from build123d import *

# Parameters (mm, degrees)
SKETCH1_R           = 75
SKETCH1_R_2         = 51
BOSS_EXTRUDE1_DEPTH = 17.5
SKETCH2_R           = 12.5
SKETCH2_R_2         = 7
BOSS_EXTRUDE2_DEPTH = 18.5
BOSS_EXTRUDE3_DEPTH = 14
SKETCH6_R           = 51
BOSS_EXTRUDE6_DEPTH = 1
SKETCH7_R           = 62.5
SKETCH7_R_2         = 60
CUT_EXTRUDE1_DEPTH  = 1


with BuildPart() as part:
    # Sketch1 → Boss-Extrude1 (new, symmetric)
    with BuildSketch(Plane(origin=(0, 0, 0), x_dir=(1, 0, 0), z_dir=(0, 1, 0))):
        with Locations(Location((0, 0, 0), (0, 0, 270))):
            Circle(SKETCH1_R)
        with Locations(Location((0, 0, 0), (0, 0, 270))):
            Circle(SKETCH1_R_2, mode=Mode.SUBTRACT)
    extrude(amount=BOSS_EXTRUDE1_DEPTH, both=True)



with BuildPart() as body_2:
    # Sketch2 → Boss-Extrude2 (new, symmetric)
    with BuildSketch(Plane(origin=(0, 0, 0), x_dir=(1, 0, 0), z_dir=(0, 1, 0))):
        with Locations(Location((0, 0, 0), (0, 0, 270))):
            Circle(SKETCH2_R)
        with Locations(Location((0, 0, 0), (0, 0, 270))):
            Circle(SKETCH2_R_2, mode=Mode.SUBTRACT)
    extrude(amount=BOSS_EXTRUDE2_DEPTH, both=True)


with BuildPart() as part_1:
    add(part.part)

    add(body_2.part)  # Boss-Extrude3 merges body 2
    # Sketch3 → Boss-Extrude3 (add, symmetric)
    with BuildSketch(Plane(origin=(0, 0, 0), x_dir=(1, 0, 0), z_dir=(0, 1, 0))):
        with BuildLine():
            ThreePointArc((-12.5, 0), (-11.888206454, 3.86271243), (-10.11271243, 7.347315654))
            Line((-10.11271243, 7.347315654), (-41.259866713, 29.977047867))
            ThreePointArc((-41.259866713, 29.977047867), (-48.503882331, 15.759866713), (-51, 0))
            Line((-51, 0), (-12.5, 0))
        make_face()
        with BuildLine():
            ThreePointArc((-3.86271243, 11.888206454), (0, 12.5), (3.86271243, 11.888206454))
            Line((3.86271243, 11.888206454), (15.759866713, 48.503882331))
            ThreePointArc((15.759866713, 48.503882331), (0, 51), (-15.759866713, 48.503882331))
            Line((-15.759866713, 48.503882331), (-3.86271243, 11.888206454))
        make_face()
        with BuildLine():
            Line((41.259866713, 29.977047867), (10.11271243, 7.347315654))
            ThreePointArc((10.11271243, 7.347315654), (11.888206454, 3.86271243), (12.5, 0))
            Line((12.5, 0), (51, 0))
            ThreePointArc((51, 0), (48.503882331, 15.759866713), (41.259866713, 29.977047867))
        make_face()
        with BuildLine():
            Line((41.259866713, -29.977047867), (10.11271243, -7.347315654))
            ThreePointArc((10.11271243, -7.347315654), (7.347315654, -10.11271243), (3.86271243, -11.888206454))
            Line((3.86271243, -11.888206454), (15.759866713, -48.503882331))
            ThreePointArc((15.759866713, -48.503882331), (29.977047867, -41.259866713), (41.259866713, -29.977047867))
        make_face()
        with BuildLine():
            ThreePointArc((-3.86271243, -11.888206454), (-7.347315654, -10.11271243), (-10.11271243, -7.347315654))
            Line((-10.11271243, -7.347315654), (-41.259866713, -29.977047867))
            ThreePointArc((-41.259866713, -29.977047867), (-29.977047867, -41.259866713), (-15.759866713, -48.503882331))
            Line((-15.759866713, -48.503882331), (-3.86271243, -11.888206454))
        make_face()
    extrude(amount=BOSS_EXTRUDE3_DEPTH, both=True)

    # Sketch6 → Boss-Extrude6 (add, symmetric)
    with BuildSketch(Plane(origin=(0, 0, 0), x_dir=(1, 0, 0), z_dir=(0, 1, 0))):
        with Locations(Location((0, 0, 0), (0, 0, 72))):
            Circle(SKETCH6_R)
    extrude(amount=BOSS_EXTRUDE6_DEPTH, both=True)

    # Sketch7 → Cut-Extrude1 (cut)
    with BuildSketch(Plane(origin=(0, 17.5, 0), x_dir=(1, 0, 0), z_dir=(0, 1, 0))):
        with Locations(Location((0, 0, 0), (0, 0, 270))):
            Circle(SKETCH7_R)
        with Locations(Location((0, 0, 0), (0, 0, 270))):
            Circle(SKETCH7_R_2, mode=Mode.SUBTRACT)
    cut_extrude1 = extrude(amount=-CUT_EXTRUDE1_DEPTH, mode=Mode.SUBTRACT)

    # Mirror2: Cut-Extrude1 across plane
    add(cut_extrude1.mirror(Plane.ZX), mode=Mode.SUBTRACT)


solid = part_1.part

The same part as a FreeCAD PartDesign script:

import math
import FreeCAD as App
import Part
import Sketcher
from FreeCAD import Vector
Q = App.Units.Quantity

doc = App.newDocument("Part")
body = doc.addObject("PartDesign::Body", "Body")

sketch1 = body.newObject("Sketcher::SketchObject", "Sketch")
sketch1.AttachmentSupport = (doc.getObject("XZ_Plane"), [""])
sketch1.MapMode = "FlatFace"
sketch1.addGeometry([
    Part.Circle(Vector(0, 0, 0), Vector(0, 0, 1), 75),
    Part.Circle(Vector(0, 0, 0), Vector(0, 0, 1), 51),
], False)
sketch1.addConstraint([
    Sketcher.Constraint("Coincident", 0, 3, -1, 1),
    Sketcher.Constraint("Coincident", 1, 3, -1, 1),
    Sketcher.Constraint("Diameter", 0, Q("150 mm")),
    Sketcher.Constraint("Diameter", 1, Q("102 mm")),
])
pad1 = body.newObject("PartDesign::Pad", "Pad")
pad1.Profile = sketch1
pad1.Length = 35
pad1.Midplane = True
body2 = doc.addObject("PartDesign::Body", "Body001")

sketch2 = body2.newObject("Sketcher::SketchObject", "Sketch001")
sketch2.AttachmentSupport = (doc.getObject("XZ_Plane001"), [""])
sketch2.MapMode = "FlatFace"
sketch2.addGeometry([
    Part.Circle(Vector(0, 0, 0), Vector(0, 0, 1), 12),
    Part.Circle(Vector(0, 0, 0), Vector(0, 0, 1), 7),
], False)
sketch2.addConstraint([
    Sketcher.Constraint("Coincident", 0, 3, -1, 1),
    Sketcher.Constraint("Coincident", 1, 3, -1, 1),
    Sketcher.Constraint("Diameter", 0, Q("25 mm")),
    Sketcher.Constraint("Diameter", 1, Q("14 mm")),
])
pad2 = body2.newObject("PartDesign::Pad", "Pad001")
pad2.Profile = sketch2
pad2.Length = 37
pad2.Midplane = True
body.AllowCompound = True
doc.recompute()

boolean = body.newObject("PartDesign::Boolean", "Boolean")
boolean.Type = "Fuse"
boolean.addObjects([body2])

sketch3 = body.newObject("Sketcher::SketchObject", "Sketch002")
sketch3.AttachmentSupport = (doc.getObject("XZ_Plane"), [""])
sketch3.MapMode = "FlatFace"
sketch3.addGeometry([
    Part.ArcOfCircle(Part.Circle(Vector(0, 0, 0), Vector(0, 0, 1), 12), math.radians(180), math.radians(216)),
    Part.LineSegment(Vector(-10, -7, 0), Vector(-41, -30, 0)),
    Part.ArcOfCircle(Part.Circle(Vector(0, 0, 0), Vector(0, 0, 1), 51), math.radians(180), math.radians(216)),
    Part.LineSegment(Vector(-51, 0, 0), Vector(-12, 0, 0)),
    Part.ArcOfCircle(Part.Circle(Vector(0, 0, 0), Vector(0, 0, 1), 13), math.radians(-108), math.radians(-72)),
    Part.LineSegment(Vector(4, -12, 0), Vector(16, -49, 0)),
    Part.ArcOfCircle(Part.Circle(Vector(0, 0, 0), Vector(0, 0, 1), 51), math.radians(-108), math.radians(-72)),
    Part.LineSegment(Vector(-16, -49, 0), Vector(-4, -12, 0)),
    Part.LineSegment(Vector(41, -30, 0), Vector(10, -7, 0)),
    Part.ArcOfCircle(Part.Circle(Vector(0, 0, 0), Vector(0, 0, 1), 12), math.radians(-36), math.radians(0)),
    Part.LineSegment(Vector(12, 0, 0), Vector(51, 0, 0)),
    Part.ArcOfCircle(Part.Circle(Vector(0, 0, 0), Vector(0, 0, 1), 51), math.radians(-36), math.radians(0)),
    Part.LineSegment(Vector(41, 30, 0), Vector(10, 7, 0)),
    Part.ArcOfCircle(Part.Circle(Vector(0, 0, 0), Vector(0, 0, 1), 12), math.radians(36), math.radians(72)),
    Part.LineSegment(Vector(4, 12, 0), Vector(16, 49, 0)),
    Part.ArcOfCircle(Part.Circle(Vector(0, 0, 0), Vector(0, 0, 1), 51), math.radians(36), math.radians(72)),
    Part.ArcOfCircle(Part.Circle(Vector(0, 0, 0), Vector(0, 0, 1), 12), math.radians(108), math.radians(144)),
    Part.LineSegment(Vector(-10, 7, 0), Vector(-41, 30, 0)),
    Part.ArcOfCircle(Part.Circle(Vector(0, 0, 0), Vector(0, 0, 1), 51), math.radians(108), math.radians(144)),
    Part.LineSegment(Vector(-16, 49, 0), Vector(-4, 12, 0)),
], False)
sketch3.addConstraint([
    Sketcher.Constraint("Coincident", 0, 2, 1, 1),
    Sketcher.Constraint("Coincident", 1, 2, 2, 2),
    Sketcher.Constraint("Coincident", 2, 1, 3, 1),
    Sketcher.Constraint("Coincident", 3, 2, 0, 1),
    Sketcher.Constraint("Coincident", 4, 2, 5, 1),
    Sketcher.Constraint("Coincident", 5, 2, 6, 2),
    Sketcher.Constraint("Coincident", 6, 1, 7, 1),
    Sketcher.Constraint("Coincident", 7, 2, 4, 1),
    Sketcher.Constraint("Coincident", 8, 2, 9, 1),
    Sketcher.Constraint("Coincident", 9, 2, 10, 1),
    Sketcher.Constraint("Coincident", 10, 2, 11, 2),
    Sketcher.Constraint("Coincident", 11, 1, 8, 1),
    Sketcher.Constraint("Coincident", 12, 2, 13, 1),
    Sketcher.Constraint("Coincident", 13, 2, 14, 1),
    Sketcher.Constraint("Coincident", 14, 2, 15, 2),
    Sketcher.Constraint("Coincident", 15, 1, 12, 1),
    Sketcher.Constraint("Coincident", 16, 2, 17, 1),
    Sketcher.Constraint("Coincident", 17, 2, 18, 2),
    Sketcher.Constraint("Coincident", 18, 1, 19, 1),
    Sketcher.Constraint("Coincident", 19, 2, 16, 1),
    Sketcher.Constraint("Horizontal", 3),
    Sketcher.Constraint("Horizontal", 10),
    Sketcher.Constraint("Coincident", 0, 3, -1, 1),
    Sketcher.Constraint("Coincident", 2, 3, -1, 1),
    Sketcher.Constraint("Coincident", 4, 3, -1, 1),
    Sketcher.Constraint("Coincident", 6, 3, -1, 1),
    Sketcher.Constraint("Coincident", 9, 3, -1, 1),
    Sketcher.Constraint("Coincident", 11, 3, -1, 1),
    Sketcher.Constraint("Coincident", 13, 3, -1, 1),
    Sketcher.Constraint("Coincident", 15, 3, -1, 1),
    Sketcher.Constraint("Coincident", 16, 3, -1, 1),
    Sketcher.Constraint("Coincident", 18, 3, -1, 1),
    Sketcher.Constraint("Equal", 0, 4),
    Sketcher.Constraint("Equal", 2, 6),
    Sketcher.Constraint("Equal", 4, 9),
    Sketcher.Constraint("Equal", 6, 11),
    Sketcher.Constraint("Equal", 9, 13),
    Sketcher.Constraint("Equal", 11, 15),
    Sketcher.Constraint("Equal", 13, 16),
    Sketcher.Constraint("Equal", 15, 18),
    Sketcher.Constraint("PointOnObject", 2, 1, -1),
    Sketcher.Constraint("PointOnObject", 9, 2, -1),
    Sketcher.Constraint("Parallel", 1, 12),
    Sketcher.Constraint("Parallel", 7, 14),
    Sketcher.Constraint("Parallel", 8, 17),
    Sketcher.Constraint("Parallel", 5, 19),
    Sketcher.Constraint("Horizontal", 5, 2, 6, 1),
    Sketcher.Constraint("Horizontal", 4, 2, 7, 2),
    Sketcher.Constraint("Horizontal", 0, 2, 8, 2),
    Sketcher.Constraint("Horizontal", 1, 2, 11, 1),
    Sketcher.Constraint("Horizontal", 12, 2, 16, 2),
    Sketcher.Constraint("Horizontal", 14, 2, 18, 1),
    Sketcher.Constraint("Vertical", 8, 2, 12, 2),
    Sketcher.Constraint("Vertical", 4, 2, 13, 2),
    Sketcher.Constraint("Radius", 2, Q("51 mm")),
    Sketcher.Constraint("Radius", 0, Q("12.5 mm")),
    Sketcher.Constraint("Angle", 1, Q("-144 deg")),
    Sketcher.Constraint("Angle", 5, Q("-72 deg")),
    Sketcher.Constraint("DistanceX", 1, 2, 6, 1, Q("25.5 mm")),
    Sketcher.Constraint("DistanceX", 0, 2, 5, 2, Q("25.872579 mm")),
])
pad3 = body.newObject("PartDesign::Pad", "Pad002")
pad3.Profile = sketch3
pad3.Length = 28
pad3.Midplane = True

sketch4 = body.newObject("Sketcher::SketchObject", "Sketch003")
sketch4.AttachmentSupport = (doc.getObject("XZ_Plane"), [""])
sketch4.MapMode = "FlatFace"
sketch4.addGeometry(Part.Circle(Vector(0, 0, 0), Vector(0, 0, 1), 51), False)
sketch4.addConstraint([
    Sketcher.Constraint("Coincident", 0, 3, -1, 1),
    Sketcher.Constraint("Diameter", 0, Q("102 mm")),
])
pad4 = body.newObject("PartDesign::Pad", "Pad003")
pad4.Profile = sketch4
pad4.Length = 2
pad4.Midplane = True

sketch5 = body.newObject("Sketcher::SketchObject", "Sketch004")
sketch5.AttachmentSupport = (doc.getObject("XZ_Plane"), [""])
sketch5.MapMode = "FlatFace"
sketch5.AttachmentOffset = App.Placement(Vector(0, 0, -17.5), App.Rotation())
sketch5.addGeometry([
    Part.Circle(Vector(0, 0, 0), Vector(0, 0, 1), 62),
    Part.Circle(Vector(0, 0, 0), Vector(0, 0, 1), 60),
], False)
sketch5.addConstraint([
    Sketcher.Constraint("Coincident", 0, 3, -1, 1),
    Sketcher.Constraint("Coincident", 1, 3, -1, 1),
    Sketcher.Constraint("Diameter", 0, Q("125 mm")),
    Sketcher.Constraint("Diameter", 1, Q("120 mm")),
])
pocket1 = body.newObject("PartDesign::Pocket", "Pocket")
pocket1.Profile = sketch5
pocket1.Length = 1
pocket1.Reversed = True
doc.recompute()

mirrored = body.newObject("PartDesign::Mirrored", "Mirrored")
mirrored.Originals = [pocket1]
mirrored.MirrorPlane = (doc.getObject("XZ_Plane"), [""])
body.Tip = mirrored

doc.recompute()
